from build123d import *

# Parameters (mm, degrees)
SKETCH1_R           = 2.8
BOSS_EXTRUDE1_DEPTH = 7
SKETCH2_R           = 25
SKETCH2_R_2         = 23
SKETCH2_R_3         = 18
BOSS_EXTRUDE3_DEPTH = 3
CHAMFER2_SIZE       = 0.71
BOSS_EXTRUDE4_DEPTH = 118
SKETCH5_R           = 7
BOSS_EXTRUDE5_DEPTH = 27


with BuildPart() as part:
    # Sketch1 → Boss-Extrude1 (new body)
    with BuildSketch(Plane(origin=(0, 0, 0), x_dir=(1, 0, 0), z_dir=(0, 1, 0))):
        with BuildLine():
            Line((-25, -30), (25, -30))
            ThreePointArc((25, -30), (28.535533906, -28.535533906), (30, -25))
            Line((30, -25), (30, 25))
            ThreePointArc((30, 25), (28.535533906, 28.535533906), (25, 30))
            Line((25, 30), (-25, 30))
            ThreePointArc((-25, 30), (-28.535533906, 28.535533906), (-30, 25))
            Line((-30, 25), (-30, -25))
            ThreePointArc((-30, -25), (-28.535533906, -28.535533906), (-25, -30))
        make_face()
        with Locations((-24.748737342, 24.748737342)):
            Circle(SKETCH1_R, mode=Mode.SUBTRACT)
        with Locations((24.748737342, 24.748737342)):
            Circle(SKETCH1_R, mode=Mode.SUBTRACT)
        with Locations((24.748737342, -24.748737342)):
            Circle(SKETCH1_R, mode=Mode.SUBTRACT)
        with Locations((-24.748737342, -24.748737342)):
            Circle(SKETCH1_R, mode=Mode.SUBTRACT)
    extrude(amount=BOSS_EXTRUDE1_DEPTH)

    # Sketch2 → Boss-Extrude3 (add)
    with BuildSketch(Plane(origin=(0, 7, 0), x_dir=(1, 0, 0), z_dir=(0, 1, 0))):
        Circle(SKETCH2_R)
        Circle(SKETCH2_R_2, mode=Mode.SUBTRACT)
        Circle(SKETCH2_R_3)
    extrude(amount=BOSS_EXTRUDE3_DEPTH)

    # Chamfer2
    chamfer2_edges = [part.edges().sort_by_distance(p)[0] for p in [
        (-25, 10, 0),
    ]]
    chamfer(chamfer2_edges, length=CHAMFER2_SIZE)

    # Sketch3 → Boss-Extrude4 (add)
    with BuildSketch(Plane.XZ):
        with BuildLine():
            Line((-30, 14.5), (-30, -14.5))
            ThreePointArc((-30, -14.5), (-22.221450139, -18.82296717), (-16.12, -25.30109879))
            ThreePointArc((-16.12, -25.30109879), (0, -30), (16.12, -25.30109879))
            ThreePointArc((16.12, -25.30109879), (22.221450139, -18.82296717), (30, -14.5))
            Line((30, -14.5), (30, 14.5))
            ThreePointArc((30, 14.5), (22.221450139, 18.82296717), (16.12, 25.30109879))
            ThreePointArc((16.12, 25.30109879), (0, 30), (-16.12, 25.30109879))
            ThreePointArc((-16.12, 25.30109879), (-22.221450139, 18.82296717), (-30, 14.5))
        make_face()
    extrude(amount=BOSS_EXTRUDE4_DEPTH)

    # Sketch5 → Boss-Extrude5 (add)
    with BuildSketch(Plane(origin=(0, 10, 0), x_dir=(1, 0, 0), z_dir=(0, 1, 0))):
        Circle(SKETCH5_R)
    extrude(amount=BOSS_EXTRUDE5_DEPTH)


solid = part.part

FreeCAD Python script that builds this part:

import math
import FreeCAD as App
import Part
import Sketcher

V = App.Vector


def edges_at(feature, points):
    """Names of the edges that pass closest to the given points."""
    edges = feature.Shape.Edges
    near = lambda p: min(range(len(edges)), key=lambda i: edges[i].distToShape(Part.Vertex(*p))[0])
    return sorted({f"Edge{near(p) + 1}" for p in points})

doc = App.newDocument("Part")
body = doc.addObject("PartDesign::Body", "Body")

sketch1 = body.newObject("Sketcher::SketchObject", "Sketch")
sketch1.AttachmentSupport = (doc.getObject("XZ_Plane"), [""])
sketch1.MapMode = "FlatFace"
sketch1.addGeometry(Part.LineSegment(V(-25, 30, 0), V(25, 30, 0)), False)
sketch1.addGeometry(Part.ArcOfCircle(Part.Circle(V(25, 25, 0), V(0, 0, 1), 5), math.radians(0), math.radians(90)), False)
sketch1.addGeometry(Part.LineSegment(V(30, 25, 0), V(30, -25, 0)), False)
sketch1.addGeometry(Part.ArcOfCircle(Part.Circle(V(25, -25, 0), V(0, 0, 1), 5), math.radians(-90), math.radians(0)), False)
sketch1.addGeometry(Part.LineSegment(V(25, -30, 0), V(-25, -30, 0)), False)
sketch1.addGeometry(Part.ArcOfCircle(Part.Circle(V(-25, -25, 0), V(0, 0, 1), 5), math.radians(180), math.radians(270)), False)
sketch1.addGeometry(Part.LineSegment(V(-30, -25, 0), V(-30, 25, 0)), False)
sketch1.addGeometry(Part.ArcOfCircle(Part.Circle(V(-25, 25, 0), V(0, 0, 1), 5), math.radians(90), math.radians(180)), False)
sketch1.addGeometry(Part.Circle(V(-24.748737, 24.748737, 0), V(0, 0, 1), 2.8), False)
sketch1.addGeometry(Part.Circle(V(24.748737, 24.748737, 0), V(0, 0, 1), 2.8), False)
sketch1.addGeometry(Part.Circle(V(-24.748737, -24.748737, 0), V(0, 0, 1), 2.8), False)
sketch1.addGeometry(Part.Circle(V(24.748737, -24.748737, 0), V(0, 0, 1), 2.8), False)
sketch1.addConstraint(Sketcher.Constraint("Tangent", 0, 2, 1, 2))
sketch1.addConstraint(Sketcher.Constraint("Tangent", 1, 1, 2, 1))
sketch1.addConstraint(Sketcher.Constraint("Tangent", 2, 2, 3, 2))
sketch1.addConstraint(Sketcher.Constraint("Tangent", 3, 1, 4, 1))
sketch1.addConstraint(Sketcher.Constraint("Tangent", 4, 2, 5, 2))
sketch1.addConstraint(Sketcher.Constraint("Tangent", 5, 1, 6, 1))
sketch1.addConstraint(Sketcher.Constraint("Tangent", 6, 2, 7, 2))
sketch1.addConstraint(Sketcher.Constraint("Tangent", 7, 1, 0, 1))
sketch1.addConstraint(Sketcher.Constraint("Horizontal", 0))
sketch1.addConstraint(Sketcher.Constraint("Vertical", 2))
sketch1.addConstraint(Sketcher.Constraint("Horizontal", 4))
sketch1.addConstraint(Sketcher.Constraint("Vertical", 6))
sketch1.addConstraint(Sketcher.Constraint("Equal", 1, 3))
sketch1.addConstraint(Sketcher.Constraint("Equal", 3, 5))
sketch1.addConstraint(Sketcher.Constraint("Equal", 5, 7))
sketch1.addConstraint(Sketcher.Constraint("Equal", 8, 9))
sketch1.addConstraint(Sketcher.Constraint("Equal", 9, 10))
sketch1.addConstraint(Sketcher.Constraint("Equal", 10, 11))
sketch1.addConstraint(Sketcher.Constraint("Symmetric", 1, 3, 5, 3, -1, 1))
sketch1.addConstraint(Sketcher.Constraint("Symmetric", 9, 3, 10, 3, -1, 1))
sketch1.addConstraint(Sketcher.Constraint("Symmetric", 8, 3, 11, 3, -1, 1))
sketch1.addConstraint(Sketcher.Constraint("Symmetric", 8, 3, 9, 3, -2))
sketch1.addConstraint(Sketcher.Constraint("Equal", 4, 2))
sketch1.addConstraint(Sketcher.Constraint("Radius", 1, 5.0))
sketch1.addConstraint(Sketcher.Constraint("Diameter", 8, 5.6))
sketch1.addConstraint(Sketcher.Constraint("DistanceX", 0, 1, 0, 2, 50.0))
sketch1.addConstraint(Sketcher.Constraint("DistanceX", 8, 3, -1, 1, 24.748737))
sketch1.addConstraint(Sketcher.Constraint("DistanceY", -1, 1, 8, 3, 24.748737))
pad1 = body.newObject("PartDesign::Pad", "Pad")
pad1.Profile = sketch1
pad1.Length = 7
pad1.Reversed = True

sketch2 = body.newObject("Sketcher::SketchObject", "Sketch001")
sketch2.AttachmentSupport = (doc.getObject("XZ_Plane"), [""])
sketch2.MapMode = "FlatFace"
sketch2.AttachmentOffset = App.Placement(V(0, 0, -7), App.Rotation())
sketch2.addGeometry(Part.Circle(V(0, 0, 0), V(0, 0, 1), 25), False)
sketch2.addGeometry(Part.Circle(V(0, 0, 0), V(0, 0, 1), 23), False)
sketch2.addGeometry(Part.Circle(V(0, 0, 0), V(0, 0, 1), 18), False)
sketch2.addConstraint(Sketcher.Constraint("Coincident", 0, 3, -1, 1))
sketch2.addConstraint(Sketcher.Constraint("Coincident", 1, 3, -1, 1))
sketch2.addConstraint(Sketcher.Constraint("Coincident", 2, 3, -1, 1))
sketch2.addConstraint(Sketcher.Constraint("Diameter", 0, 50.0))
sketch2.addConstraint(Sketcher.Constraint("Diameter", 1, 46.0))
sketch2.addConstraint(Sketcher.Constraint("Diameter", 2, 36.0))
pad2 = body.newObject("PartDesign::Pad", "Pad001")
pad2.Profile = sketch2
pad2.Length = 3
pad2.Reversed = True
doc.recompute()

chamfer = body.newObject("PartDesign::Chamfer", "Chamfer")
chamfer.Base = (pad2, edges_at(pad2, [(-25, 10, 0)]))
chamfer.Size = 0.71

sketch3 = body.newObject("Sketcher::SketchObject", "Sketch002")
sketch3.AttachmentSupport = (doc.getObject("XZ_Plane"), [""])
sketch3.MapMode = "FlatFace"
sketch3.addGeometry(Part.LineSegment(V(-30, 14.5, 0), V(-30, -14.5, 0)), False)
sketch3.addGeometry(Part.ArcOfCircle(Part.Circle(V(-40.031422, -41.709751, 0), V(0, 0, 1), 29), math.radians(34.458947), math.radians(69.762576)), False)
sketch3.addGeometry(Part.ArcOfCircle(Part.Circle(V(0, 0, 0), V(0, 0, 1), 30), math.radians(-122.502291), math.radians(-57.497709)), False)
sketch3.addGeometry(Part.ArcOfCircle(Part.Circle(V(40.031422, -41.709751, 0), V(0, 0, 1), 29), math.radians(110.237424), math.radians(145.541053)), False)
sketch3.addGeometry(Part.LineSegment(V(30, -14.5, 0), V(30, 14.5, 0)), False)
sketch3.addGeometry(Part.ArcOfCircle(Part.Circle(V(40.031422, 41.709751, 0), V(0, 0, 1), 29), math.radians(-145.541053), math.radians(-110.237424)), False)
sketch3.addGeometry(Part.ArcOfCircle(Part.Circle(V(0, 0, 0), V(0, 0, 1), 30), math.radians(57.497709), math.radians(122.502291)), False)
sketch3.addGeometry(Part.ArcOfCircle(Part.Circle(V(-40.031422, 41.709751, 0), V(0, 0, 1), 29), math.radians(-69.762576), math.radians(-34.458947)), False)
sketch3.addConstraint(Sketcher.Constraint("Coincident", 0, 2, 1, 2))
sketch3.addConstraint(Sketcher.Constraint("Coincident", 1, 1, 2, 1))
sketch3.addConstraint(Sketcher.Constraint("Coincident", 2, 2, 3, 2))
sketch3.addConstraint(Sketcher.Constraint("Coincident", 3, 1, 4, 1))
sketch3.addConstraint(Sketcher.Constraint("Coincident", 4, 2, 5, 2))
sketch3.addConstraint(Sketcher.Constraint("Coincident", 5, 1, 6, 1))
sketch3.addConstraint(Sketcher.Constraint("Coincident", 6, 2, 7, 2))
sketch3.addConstraint(Sketcher.Constraint("Coincident", 7, 1, 0, 1))
sketch3.addConstraint(Sketcher.Constraint("Vertical", 0))
sketch3.addConstraint(Sketcher.Constraint("Vertical", 4))
sketch3.addConstraint(Sketcher.Constraint("Coincident", 2, 3, -1, 1))
sketch3.addConstraint(Sketcher.Constraint("Coincident", 6, 3, -1, 1))
sketch3.addConstraint(Sketcher.Constraint("Equal", 1, 3))
sketch3.addConstraint(Sketcher.Constraint("Equal", 3, 5))
sketch3.addConstraint(Sketcher.Constraint("Equal", 2, 6))
sketch3.addConstraint(Sketcher.Constraint("Equal", 5, 7))
sketch3.addConstraint(Sketcher.Constraint("Symmetric", 1, 3, 5, 3, -1, 1))
sketch3.addConstraint(Sketcher.Constraint("Symmetric", 3, 3, 7, 3, -1, 1))
sketch3.addConstraint(Sketcher.Constraint("Symmetric", 1, 3, 3, 3, -2))
sketch3.addConstraint(Sketcher.Constraint("Horizontal", 0, 2, 3, 1))
sketch3.addConstraint(Sketcher.Constraint("Radius", 1, 29.0))
sketch3.addConstraint(Sketcher.Constraint("Radius", 2, 30.0))
sketch3.addConstraint(Sketcher.Constraint("DistanceY", 0, 2, 0, 1, 29.0))
sketch3.addConstraint(Sketcher.Constraint("DistanceX", 0, 2, -1, 1, 30.0))
sketch3.addConstraint(Sketcher.Constraint("DistanceX", 1, 1, -1, 1, 16.12))
pad3 = body.newObject("PartDesign::Pad", "Pad002")
pad3.Profile = sketch3
pad3.Length = 118

sketch4 = body.newObject("Sketcher::SketchObject", "Sketch003")
sketch4.AttachmentSupport = (doc.getObject("XZ_Plane"), [""])
sketch4.MapMode = "FlatFace"
sketch4.AttachmentOffset = App.Placement(V(0, 0, -10), App.Rotation())
sketch4.addGeometry(Part.Circle(V(0, 0, 0), V(0, 0, 1), 7), False)
sketch4.addConstraint(Sketcher.Constraint("Coincident", 0, 3, -1, 1))
sketch4.addConstraint(Sketcher.Constraint("Diameter", 0, 14.0))
pad4 = body.newObject("PartDesign::Pad", "Pad003")
pad4.Profile = sketch4
pad4.Length = 27
pad4.Reversed = True

doc.recompute()
